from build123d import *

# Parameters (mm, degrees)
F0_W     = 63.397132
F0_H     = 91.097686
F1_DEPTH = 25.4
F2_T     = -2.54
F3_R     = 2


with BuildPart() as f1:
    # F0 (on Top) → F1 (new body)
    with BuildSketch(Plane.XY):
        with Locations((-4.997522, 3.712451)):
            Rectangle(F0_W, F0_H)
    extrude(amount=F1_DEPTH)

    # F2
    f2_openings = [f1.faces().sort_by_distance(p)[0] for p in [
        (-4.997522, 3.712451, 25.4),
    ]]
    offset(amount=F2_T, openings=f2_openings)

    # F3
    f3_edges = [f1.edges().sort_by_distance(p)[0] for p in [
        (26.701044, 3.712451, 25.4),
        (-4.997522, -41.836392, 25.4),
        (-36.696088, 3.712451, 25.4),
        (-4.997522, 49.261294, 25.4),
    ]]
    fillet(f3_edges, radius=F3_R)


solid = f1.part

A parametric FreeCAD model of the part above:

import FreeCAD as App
import Part
import Sketcher

V = App.Vector
Q = App.Units.Quantity


def edges_at(feature, points):
    """Names of the edges that pass closest to the given points."""
    edges = feature.Shape.Edges
    near = lambda p: min(range(len(edges)), key=lambda i: edges[i].distToShape(Part.Vertex(*p))[0])
    return sorted({f"Edge{near(p) + 1}" for p in points})


def faces_at(feature, points):
    """Names of the faces that lie closest to the given points."""
    faces = feature.Shape.Faces
    near = lambda p: min(range(len(faces)), key=lambda i: faces[i].distToShape(Part.Vertex(*p))[0])
    return sorted({f"Face{near(p) + 1}" for p in points})

doc = App.newDocument("Part")
body = doc.addObject("PartDesign::Body", "Body")

sketch1 = body.newObject("Sketcher::SketchObject", "Sketch")
sketch1.AttachmentSupport = (doc.getObject("XY_Plane"), [""])
sketch1.MapMode = "FlatFace"
sketch1.addGeometry([
    Part.LineSegment(V(-37, 49, 0), V(-37, -42, 0)),
    Part.LineSegment(V(-37, -42, 0), V(27, -42, 0)),
    Part.LineSegment(V(27, -42, 0), V(27, 49, 0)),
    Part.LineSegment(V(27, 49, 0), V(-37, 49, 0)),
], False)
sketch1.addConstraint([
    Sketcher.Constraint("Coincident", 0, 2, 1, 1),
    Sketcher.Constraint("Coincident", 1, 2, 2, 1),
    Sketcher.Constraint("Coincident", 2, 2, 3, 1),
    Sketcher.Constraint("Coincident", 3, 2, 0, 1),
    Sketcher.Constraint("Vertical", 0),
    Sketcher.Constraint("Horizontal", 1),
    Sketcher.Constraint("Vertical", 2),
    Sketcher.Constraint("Horizontal", 3),
    Sketcher.Constraint("DistanceX", 1, 1, 1, 2, Q("63.397132 mm")),
    Sketcher.Constraint("DistanceY", 0, 2, 0, 1, Q("91.097686 mm")),
    Sketcher.Constraint("DistanceX", 0, 2, -1, 1, Q("36.696088 mm")),
    Sketcher.Constraint("DistanceY", 0, 2, -1, 1, Q("41.836392 mm")),
])
pad1 = body.newObject("PartDesign::Pad", "Pad")
pad1.Profile = sketch1
pad1.Length = Q("1 in")
doc.recompute()

thickness = body.newObject("PartDesign::Thickness", "Thickness")
thickness.Base = (pad1, faces_at(pad1, [(-4.998, 3.712, 25.4)]))
thickness.Value = Q("0.1 in")
thickness.Reversed = True
thickness.Join = "Arc"
doc.recompute()

fillet = body.newObject("PartDesign::Fillet", "Fillet")
fillet.Base = (thickness, edges_at(thickness, [
    (26.701, 3.712, 25.4),
    (-4.998, -41.836, 25.4),
    (-36.696, 3.712, 25.4),
    (-4.998, 49.261, 25.4),
]))
fillet.Radius = 2

doc.recompute()
